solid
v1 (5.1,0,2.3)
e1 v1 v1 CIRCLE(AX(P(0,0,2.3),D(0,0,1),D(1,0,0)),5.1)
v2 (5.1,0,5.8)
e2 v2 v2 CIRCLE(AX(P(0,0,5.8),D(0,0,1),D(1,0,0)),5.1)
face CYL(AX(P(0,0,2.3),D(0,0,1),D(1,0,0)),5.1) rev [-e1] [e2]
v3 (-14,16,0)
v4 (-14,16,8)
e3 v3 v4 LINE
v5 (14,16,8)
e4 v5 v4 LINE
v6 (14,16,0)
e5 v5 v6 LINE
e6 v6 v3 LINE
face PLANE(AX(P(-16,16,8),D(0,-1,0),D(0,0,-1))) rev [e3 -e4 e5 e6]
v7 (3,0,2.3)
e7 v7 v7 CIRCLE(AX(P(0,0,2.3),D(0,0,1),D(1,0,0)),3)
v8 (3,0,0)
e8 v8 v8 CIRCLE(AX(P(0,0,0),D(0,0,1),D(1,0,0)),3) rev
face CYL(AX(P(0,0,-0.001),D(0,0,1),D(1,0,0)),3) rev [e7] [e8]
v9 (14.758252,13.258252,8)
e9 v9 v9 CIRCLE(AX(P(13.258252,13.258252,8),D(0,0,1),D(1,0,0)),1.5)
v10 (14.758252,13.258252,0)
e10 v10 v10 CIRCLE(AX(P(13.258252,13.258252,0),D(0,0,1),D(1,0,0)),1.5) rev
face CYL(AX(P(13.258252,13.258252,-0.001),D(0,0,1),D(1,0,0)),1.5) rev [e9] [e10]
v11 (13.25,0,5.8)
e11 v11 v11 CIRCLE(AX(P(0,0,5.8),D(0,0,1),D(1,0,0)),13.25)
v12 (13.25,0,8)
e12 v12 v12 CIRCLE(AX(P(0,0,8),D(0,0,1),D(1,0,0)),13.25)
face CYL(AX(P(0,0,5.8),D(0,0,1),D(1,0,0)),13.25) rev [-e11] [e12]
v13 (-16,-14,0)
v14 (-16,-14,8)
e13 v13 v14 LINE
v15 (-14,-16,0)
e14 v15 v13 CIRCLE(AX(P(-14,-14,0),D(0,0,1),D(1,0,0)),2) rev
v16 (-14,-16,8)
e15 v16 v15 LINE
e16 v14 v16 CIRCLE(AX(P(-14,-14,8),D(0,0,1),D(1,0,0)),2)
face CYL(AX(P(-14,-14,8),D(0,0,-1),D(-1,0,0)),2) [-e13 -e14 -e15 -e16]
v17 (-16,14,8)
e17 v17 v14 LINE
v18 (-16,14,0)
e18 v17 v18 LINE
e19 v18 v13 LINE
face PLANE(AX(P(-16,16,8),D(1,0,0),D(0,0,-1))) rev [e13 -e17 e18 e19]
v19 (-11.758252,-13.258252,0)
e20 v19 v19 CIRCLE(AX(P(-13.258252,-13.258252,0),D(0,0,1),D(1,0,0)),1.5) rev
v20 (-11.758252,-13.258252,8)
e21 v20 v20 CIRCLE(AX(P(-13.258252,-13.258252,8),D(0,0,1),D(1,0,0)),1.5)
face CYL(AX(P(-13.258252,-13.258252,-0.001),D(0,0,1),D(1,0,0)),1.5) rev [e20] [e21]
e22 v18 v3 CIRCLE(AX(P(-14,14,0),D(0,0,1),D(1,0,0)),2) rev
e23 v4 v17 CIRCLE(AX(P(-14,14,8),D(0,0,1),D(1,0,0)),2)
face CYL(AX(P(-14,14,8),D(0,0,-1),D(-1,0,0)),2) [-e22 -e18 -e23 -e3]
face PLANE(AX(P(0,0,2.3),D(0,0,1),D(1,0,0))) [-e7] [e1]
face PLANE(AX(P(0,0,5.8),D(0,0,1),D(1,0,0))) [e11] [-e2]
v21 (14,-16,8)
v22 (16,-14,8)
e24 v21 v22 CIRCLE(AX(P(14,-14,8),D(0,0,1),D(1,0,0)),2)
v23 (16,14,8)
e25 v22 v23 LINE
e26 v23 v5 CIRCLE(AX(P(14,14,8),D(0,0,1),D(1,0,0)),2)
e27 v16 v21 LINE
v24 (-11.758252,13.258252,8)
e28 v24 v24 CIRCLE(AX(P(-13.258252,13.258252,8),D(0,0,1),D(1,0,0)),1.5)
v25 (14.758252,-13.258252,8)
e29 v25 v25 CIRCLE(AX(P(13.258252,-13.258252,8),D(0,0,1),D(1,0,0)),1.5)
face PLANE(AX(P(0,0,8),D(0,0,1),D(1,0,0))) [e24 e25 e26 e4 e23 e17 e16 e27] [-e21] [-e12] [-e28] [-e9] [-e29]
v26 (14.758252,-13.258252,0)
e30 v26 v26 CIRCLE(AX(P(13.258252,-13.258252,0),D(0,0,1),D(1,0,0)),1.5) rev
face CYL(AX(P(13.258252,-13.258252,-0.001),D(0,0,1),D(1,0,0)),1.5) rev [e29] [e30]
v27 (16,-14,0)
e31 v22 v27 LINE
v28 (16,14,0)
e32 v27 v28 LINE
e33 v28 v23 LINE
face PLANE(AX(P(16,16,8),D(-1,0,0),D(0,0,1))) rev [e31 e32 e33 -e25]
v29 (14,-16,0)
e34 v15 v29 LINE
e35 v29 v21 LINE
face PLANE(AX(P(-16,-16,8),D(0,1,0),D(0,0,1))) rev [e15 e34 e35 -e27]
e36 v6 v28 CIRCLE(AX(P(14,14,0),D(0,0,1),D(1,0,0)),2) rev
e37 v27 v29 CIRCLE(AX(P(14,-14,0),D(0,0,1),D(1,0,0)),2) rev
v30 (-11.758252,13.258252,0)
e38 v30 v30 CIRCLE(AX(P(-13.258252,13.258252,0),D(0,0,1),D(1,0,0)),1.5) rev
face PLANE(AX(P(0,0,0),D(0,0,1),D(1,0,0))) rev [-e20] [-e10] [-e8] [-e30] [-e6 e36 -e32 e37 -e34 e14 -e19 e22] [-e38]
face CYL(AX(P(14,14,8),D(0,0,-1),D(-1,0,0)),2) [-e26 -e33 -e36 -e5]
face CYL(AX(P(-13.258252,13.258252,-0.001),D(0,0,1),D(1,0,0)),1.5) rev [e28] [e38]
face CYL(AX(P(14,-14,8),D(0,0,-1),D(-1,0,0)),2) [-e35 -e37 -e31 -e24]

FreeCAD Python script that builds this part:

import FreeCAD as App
import Part
import Sketcher
from FreeCAD import Vector
Q = App.Units.Quantity


def edges_at(feature, points):
    """Names of the edges that pass closest to the given points."""
    edges = feature.Shape.Edges
    near = lambda p: min(range(len(edges)), key=lambda i: edges[i].distToShape(Part.Vertex(*p))[0])
    return sorted({f"Edge{near(p) + 1}" for p in points})


def add_polygon(sketch, points):
    """Adds a closed chain of lines whose ends are joined by coincident constraints."""
    first, n = sketch.GeometryCount, len(points)
    for a, b in zip(points, points[1:] + points[:1]):
        sketch.addGeometry(Part.LineSegment(App.Vector(*a, 0), App.Vector(*b, 0)), False)
    for i in range(n):
        sketch.addConstraint(Sketcher.Constraint("Coincident", first + i, 2, first + (i + 1) % n, 1))

doc = App.newDocument("Part")
body = doc.addObject("PartDesign::Body", "Body")

# Sketch on XY plane
sketch1 = body.newObject("Sketcher::SketchObject", "Sketch")
sketch1.AttachmentSupport = (doc.getObject("XY_Plane"), [""])
sketch1.MapMode = "FlatFace"
add_polygon(sketch1, [(-16, 16), (-16, -16), (16, -16), (16, 16)])  # lines 0-3
sketch1.addConstraint([
    Sketcher.Constraint("Vertical", 0),
    Sketcher.Constraint("Horizontal", 1),
    Sketcher.Constraint("Vertical", 2),
    Sketcher.Constraint("Horizontal", 3),
    Sketcher.Constraint("Symmetric", 0, 2, 2, 2, -1, 1),
    Sketcher.Constraint("Equal", 3, 0),
    Sketcher.Constraint("DistanceX", 1, 1, 1, 2, Q("32 mm")),
])
pad1 = body.newObject("PartDesign::Pad", "Pad")
pad1.Profile = sketch1
pad1.Length = 8

# Sketch on XY plane
sketch2 = body.newObject("Sketcher::SketchObject", "Sketch001")
sketch2.AttachmentSupport = (doc.getObject("XY_Plane"), [""])
sketch2.MapMode = "FlatFace"
sketch2.AttachmentOffset = App.Placement(Vector(0, 0, 8), App.Rotation())
sketch2.addGeometry(Part.Circle(Vector(-13.258252, 13.258252, 0), Vector(0, 0, 1), 1.5), False)
sketch2.addConstraint([
    Sketcher.Constraint("Diameter", 0, Q("3 mm")),
    Sketcher.Constraint("DistanceX", 0, 3, -1, 1, Q("13.258252 mm")),
    Sketcher.Constraint("DistanceY", -1, 1, 0, 3, Q("13.258252 mm")),
])
pocket1 = body.newObject("PartDesign::Pocket", "Pocket")
pocket1.Profile = sketch2
pocket1.Type = "UpToFirst"

# Sketch on XY plane
sketch3 = body.newObject("Sketcher::SketchObject", "Sketch002")
sketch3.AttachmentSupport = (doc.getObject("XY_Plane"), [""])
sketch3.MapMode = "FlatFace"
sketch3.AttachmentOffset = App.Placement(Vector(0, 0, 8), App.Rotation())
sketch3.addGeometry(Part.Circle(Vector(13.258252, 13.258252, 0), Vector(0, 0, 1), 1.5), False)
sketch3.addConstraint([
    Sketcher.Constraint("Diameter", 0, Q("3 mm")),
    Sketcher.Constraint("DistanceX", -1, 1, 0, 3, Q("13.258252 mm")),
    Sketcher.Constraint("DistanceY", -1, 1, 0, 3, Q("13.258252 mm")),
])
pocket2 = body.newObject("PartDesign::Pocket", "Pocket001")
pocket2.Profile = sketch3
pocket2.Type = "UpToFirst"

# Sketch on XY plane
sketch4 = body.newObject("Sketcher::SketchObject", "Sketch003")
sketch4.AttachmentSupport = (doc.getObject("XY_Plane"), [""])
sketch4.MapMode = "FlatFace"
sketch4.AttachmentOffset = App.Placement(Vector(0, 0, 8), App.Rotation())
sketch4.addGeometry(Part.Circle(Vector(13.258252, -13.258252, 0), Vector(0, 0, 1), 1.5), False)
sketch4.addConstraint([
    Sketcher.Constraint("Diameter", 0, Q("3 mm")),
    Sketcher.Constraint("DistanceX", -1, 1, 0, 3, Q("13.258252 mm")),
    Sketcher.Constraint("DistanceY", 0, 3, -1, 1, Q("13.258252 mm")),
])
pocket3 = body.newObject("PartDesign::Pocket", "Pocket002")
pocket3.Profile = sketch4
pocket3.Type = "UpToFirst"

# Sketch on XY plane
sketch5 = body.newObject("Sketcher::SketchObject", "Sketch004")
sketch5.AttachmentSupport = (doc.getObject("XY_Plane"), [""])
sketch5.MapMode = "FlatFace"
sketch5.AttachmentOffset = App.Placement(Vector(0, 0, 8), App.Rotation())
sketch5.addGeometry(Part.Circle(Vector(-13.258252, -13.258252, 0), Vector(0, 0, 1), 1.5), False)
sketch5.addConstraint([
    Sketcher.Constraint("Diameter", 0, Q("3 mm")),
    Sketcher.Constraint("DistanceX", 0, 3, -1, 1, Q("13.258252 mm")),
    Sketcher.Constraint("DistanceY", 0, 3, -1, 1, Q("13.258252 mm")),
])
pocket4 = body.newObject("PartDesign::Pocket", "Pocket003")
pocket4.Profile = sketch5
pocket4.Type = "UpToFirst"

# Sketch on XY plane
sketch6 = body.newObject("Sketcher::SketchObject", "Sketch005")
sketch6.AttachmentSupport = (doc.getObject("XY_Plane"), [""])
sketch6.MapMode = "FlatFace"
sketch6.AttachmentOffset = App.Placement(Vector(0, 0, 8), App.Rotation())
sketch6.addGeometry(Part.Circle(Vector(0, 0, 0), Vector(0, 0, 1), 13.25), False)
sketch6.addConstraint([
    Sketcher.Constraint("Coincident", 0, 3, -1, 1),
    Sketcher.Constraint("Diameter", 0, Q("26.5 mm")),
])
pocket5 = body.newObject("PartDesign::Pocket", "Pocket004")
pocket5.Profile = sketch6
pocket5.Length = 2.2

# Sketch on XY plane
sketch7 = body.newObject("Sketcher::SketchObject", "Sketch006")
sketch7.AttachmentSupport = (doc.getObject("XY_Plane"), [""])
sketch7.MapMode = "FlatFace"
sketch7.AttachmentOffset = App.Placement(Vector(0, 0, 5.8), App.Rotation())
sketch7.addGeometry(Part.Circle(Vector(0, 0, 0), Vector(0, 0, 1), 5.1), False)
sketch7.addConstraint([
    Sketcher.Constraint("Coincident", 0, 3, -1, 1),
    Sketcher.Constraint("Diameter", 0, Q("10.2 mm")),
])
pocket6 = body.newObject("PartDesign::Pocket", "Pocket005")
pocket6.Profile = sketch7
pocket6.Length = 3.5

# Sketch on XY plane
sketch8 = body.newObject("Sketcher::SketchObject", "Sketch007")
sketch8.AttachmentSupport = (doc.getObject("XY_Plane"), [""])
sketch8.MapMode = "FlatFace"
sketch8.AttachmentOffset = App.Placement(Vector(0, 0, 2.3), App.Rotation())
sketch8.addGeometry(Part.Circle(Vector(0, 0, 0), Vector(0, 0, 1), 3), False)
sketch8.addConstraint([
    Sketcher.Constraint("Coincident", 0, 3, -1, 1),
    Sketcher.Constraint("Diameter", 0, Q("6 mm")),
])
pocket7 = body.newObject("PartDesign::Pocket", "Pocket006")
pocket7.Profile = sketch8
pocket7.Type = "UpToFirst"
doc.recompute()

fillet = body.newObject("PartDesign::Fillet", "Fillet")
fillet.Base = (pocket7, edges_at(pocket7, [
    (16, -16, 4),
    (-16, -16, 4),
    (-16, 16, 4),
    (16, 16, 4),
]))
fillet.Radius = 2

doc.recompute()
